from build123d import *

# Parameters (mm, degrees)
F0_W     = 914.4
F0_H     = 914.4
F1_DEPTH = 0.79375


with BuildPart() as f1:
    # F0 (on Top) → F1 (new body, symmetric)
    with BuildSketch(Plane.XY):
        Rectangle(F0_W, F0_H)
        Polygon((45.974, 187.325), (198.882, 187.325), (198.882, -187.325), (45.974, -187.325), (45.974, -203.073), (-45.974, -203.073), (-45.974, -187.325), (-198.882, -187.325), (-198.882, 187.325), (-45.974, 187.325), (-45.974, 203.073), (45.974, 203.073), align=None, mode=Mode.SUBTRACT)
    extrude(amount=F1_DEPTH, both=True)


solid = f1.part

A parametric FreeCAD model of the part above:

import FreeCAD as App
import Part
import Sketcher
Q = App.Units.Quantity

doc = App.newDocument("Part")
body = doc.addObject("PartDesign::Body", "Body")

# Sketch on XY plane
sketch1 = doc.addObject("Sketcher::SketchObject", "Sketch")
body.addObject(sketch1)
sketch1.AttachmentSupport = (doc.XY_Plane, [""])
sketch1.MapMode = "FlatFace"
sketch1.addGeometry(Part.LineSegment(App.Vector(-457, 457, 0), App.Vector(-457, -457, 0)), False)
sketch1.addGeometry(Part.LineSegment(App.Vector(-457, -457, 0), App.Vector(457, -457, 0)), False)
sketch1.addGeometry(Part.LineSegment(App.Vector(457, -457, 0), App.Vector(457, 457, 0)), False)
sketch1.addGeometry(Part.LineSegment(App.Vector(457, 457, 0), App.Vector(-457, 457, 0)), False)
sketch1.addGeometry(Part.LineSegment(App.Vector(46, 203, 0), App.Vector(46, 187, 0)), False)
sketch1.addGeometry(Part.LineSegment(App.Vector(46, 187, 0), App.Vector(199, 187, 0)), False)
sketch1.addGeometry(Part.LineSegment(App.Vector(199, 187, 0), App.Vector(199, -187, 0)), False)
sketch1.addGeometry(Part.LineSegment(App.Vector(199, -187, 0), App.Vector(46, -187, 0)), False)
sketch1.addGeometry(Part.LineSegment(App.Vector(46, -187, 0), App.Vector(46, -203, 0)), False)
sketch1.addGeometry(Part.LineSegment(App.Vector(46, -203, 0), App.Vector(-46, -203, 0)), False)
sketch1.addGeometry(Part.LineSegment(App.Vector(-46, -203, 0), App.Vector(-46, -187, 0)), False)
sketch1.addGeometry(Part.LineSegment(App.Vector(-46, -187, 0), App.Vector(-199, -187, 0)), False)
sketch1.addGeometry(Part.LineSegment(App.Vector(-199, -187, 0), App.Vector(-199, 187, 0)), False)
sketch1.addGeometry(Part.LineSegment(App.Vector(-199, 187, 0), App.Vector(-46, 187, 0)), False)
sketch1.addGeometry(Part.LineSegment(App.Vector(-46, 187, 0), App.Vector(-46, 203, 0)), False)
sketch1.addGeometry(Part.LineSegment(App.Vector(-46, 203, 0), App.Vector(46, 203, 0)), False)
sketch1.addConstraint(Sketcher.Constraint("Coincident", 0, 2, 1, 1))
sketch1.addConstraint(Sketcher.Constraint("Coincident", 1, 2, 2, 1))
sketch1.addConstraint(Sketcher.Constraint("Coincident", 2, 2, 3, 1))
sketch1.addConstraint(Sketcher.Constraint("Coincident", 3, 2, 0, 1))
sketch1.addConstraint(Sketcher.Constraint("Coincident", 4, 2, 5, 1))
sketch1.addConstraint(Sketcher.Constraint("Coincident", 5, 2, 6, 1))
sketch1.addConstraint(Sketcher.Constraint("Coincident", 6, 2, 7, 1))
sketch1.addConstraint(Sketcher.Constraint("Coincident", 7, 2, 8, 1))
sketch1.addConstraint(Sketcher.Constraint("Coincident", 8, 2, 9, 1))
sketch1.addConstraint(Sketcher.Constraint("Coincident", 9, 2, 10, 1))
sketch1.addConstraint(Sketcher.Constraint("Coincident", 10, 2, 11, 1))
sketch1.addConstraint(Sketcher.Constraint("Coincident", 11, 2, 12, 1))
sketch1.addConstraint(Sketcher.Constraint("Coincident", 12, 2, 13, 1))
sketch1.addConstraint(Sketcher.Constraint("Coincident", 13, 2, 14, 1))
sketch1.addConstraint(Sketcher.Constraint("Coincident", 14, 2, 15, 1))
sketch1.addConstraint(Sketcher.Constraint("Coincident", 15, 2, 4, 1))
sketch1.addConstraint(Sketcher.Constraint("Vertical", 0))
sketch1.addConstraint(Sketcher.Constraint("Horizontal", 1))
sketch1.addConstraint(Sketcher.Constraint("Vertical", 2))
sketch1.addConstraint(Sketcher.Constraint("Horizontal", 3))
sketch1.addConstraint(Sketcher.Constraint("Vertical", 4))
sketch1.addConstraint(Sketcher.Constraint("Horizontal", 5))
sketch1.addConstraint(Sketcher.Constraint("Vertical", 6))
sketch1.addConstraint(Sketcher.Constraint("Horizontal", 7))
sketch1.addConstraint(Sketcher.Constraint("Vertical", 8))
sketch1.addConstraint(Sketcher.Constraint("Horizontal", 9))
sketch1.addConstraint(Sketcher.Constraint("Vertical", 10))
sketch1.addConstraint(Sketcher.Constraint("Horizontal", 11))
sketch1.addConstraint(Sketcher.Constraint("Vertical", 12))
sketch1.addConstraint(Sketcher.Constraint("Horizontal", 13))
sketch1.addConstraint(Sketcher.Constraint("Vertical", 14))
sketch1.addConstraint(Sketcher.Constraint("Horizontal", 15))
sketch1.addConstraint(Sketcher.Constraint("Symmetric", 0, 2, 2, 2, -1, 1))
sketch1.addConstraint(Sketcher.Constraint("Symmetric", 4, 2, 10, 2, -1, 1))
sketch1.addConstraint(Sketcher.Constraint("Symmetric", 6, 2, 12, 2, -1, 1))
sketch1.addConstraint(Sketcher.Constraint("Symmetric", 8, 2, 14, 2, -1, 1))
sketch1.addConstraint(Sketcher.Constraint("Symmetric", 7, 2, 10, 2, -2))
sketch1.addConstraint(Sketcher.Constraint("Equal", 3, 0))
sketch1.addConstraint(Sketcher.Constraint("DistanceX", 1, 1, 1, 2, Q("36 in")))
sketch1.addConstraint(Sketcher.Constraint("DistanceX", 5, 1, 5, 2, Q("6.02 in")))
sketch1.addConstraint(Sketcher.Constraint("DistanceX", 9, 2, 9, 1, Q("3.62 in")))
sketch1.addConstraint(Sketcher.Constraint("DistanceY", 4, 2, 4, 1, Q("0.62 in")))
sketch1.addConstraint(Sketcher.Constraint("DistanceY", 6, 2, 6, 1, Q("14.75 in")))
pad1 = doc.addObject("PartDesign::Pad", "Pad")
body.addObject(pad1)
pad1.Profile = sketch1
pad1.Length = Q("0.0625 in")
pad1.Midplane = True

doc.recompute()
